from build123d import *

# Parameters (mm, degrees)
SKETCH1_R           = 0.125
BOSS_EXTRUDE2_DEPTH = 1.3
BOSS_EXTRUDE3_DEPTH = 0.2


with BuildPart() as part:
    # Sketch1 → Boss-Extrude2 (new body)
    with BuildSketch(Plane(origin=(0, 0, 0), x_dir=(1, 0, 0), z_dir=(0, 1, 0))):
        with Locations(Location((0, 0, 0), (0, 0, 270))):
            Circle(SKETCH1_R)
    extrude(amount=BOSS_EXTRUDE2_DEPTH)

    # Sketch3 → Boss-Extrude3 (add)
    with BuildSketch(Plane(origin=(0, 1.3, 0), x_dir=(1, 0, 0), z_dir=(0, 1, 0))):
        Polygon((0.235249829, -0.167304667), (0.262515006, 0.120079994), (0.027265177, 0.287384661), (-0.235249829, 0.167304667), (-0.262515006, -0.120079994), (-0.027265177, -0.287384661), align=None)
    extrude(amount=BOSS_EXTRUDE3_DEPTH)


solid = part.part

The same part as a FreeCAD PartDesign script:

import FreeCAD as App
import Part
import Sketcher

V = App.Vector

doc = App.newDocument("Part")
body = doc.addObject("PartDesign::Body", "Body")

# Sketch on XZ plane
sketch1 = doc.addObject("Sketcher::SketchObject", "Sketch")
body.addObject(sketch1)
sketch1.AttachmentSupport = (doc.XZ_Plane, [""])
sketch1.MapMode = "FlatFace"
sketch1.addGeometry(Part.Circle(V(0, 0, 0), V(0, 0, 1), 0.12), False)
sketch1.addConstraint([
    Sketcher.Constraint("Coincident", 0, 3, -1, 1),
    Sketcher.Constraint("Diameter", 0, 0.25),
])
pad1 = doc.addObject("PartDesign::Pad", "Pad")
body.addObject(pad1)
pad1.Profile = sketch1
pad1.Length = 1.3
pad1.Reversed = True

# Sketch on XZ plane
sketch2 = doc.addObject("Sketcher::SketchObject", "Sketch001")
body.addObject(sketch2)
sketch2.AttachmentSupport = (doc.XZ_Plane, [""])
sketch2.MapMode = "FlatFace"
sketch2.AttachmentOffset = App.Placement(V(0, 0, -1.3), App.Rotation())
sketch2.addGeometry([
    Part.LineSegment(V(0.24, 0.17, 0), V(0.26, -0.12, 0)),  # 0
    Part.LineSegment(V(0.26, -0.12, 0), V(0.03, -0.29, 0)),  # 1
    Part.LineSegment(V(0.03, -0.29, 0), V(-0.24, -0.17, 0)),  # 2
    Part.LineSegment(V(-0.24, -0.17, 0), V(-0.26, 0.12, 0)),  # 3
    Part.LineSegment(V(-0.26, 0.12, 0), V(-0.03, 0.29, 0)),  # 4
    Part.LineSegment(V(-0.03, 0.29, 0), V(0.24, 0.17, 0)),  # 5
], False)
sketch2.addConstraint([
    Sketcher.Constraint("Coincident", 0, 2, 1, 1),
    Sketcher.Constraint("Coincident", 1, 2, 2, 1),
    Sketcher.Constraint("Coincident", 2, 2, 3, 1),
    Sketcher.Constraint("Coincident", 3, 2, 4, 1),
    Sketcher.Constraint("Coincident", 4, 2, 5, 1),
    Sketcher.Constraint("Coincident", 5, 2, 0, 1),
    Sketcher.Constraint("Symmetric", 0, 2, 3, 2, -1, 1),
    Sketcher.Constraint("Symmetric", 1, 2, 4, 2, -1, 1),
    Sketcher.Constraint("Symmetric", 2, 2, 5, 2, -1, 1),
    Sketcher.Constraint("Equal", 0, 1),
    Sketcher.Constraint("Equal", 1, 2),
    Sketcher.Constraint("DistanceX", 2, 2, 5, 2, 0.4705),
    Sketcher.Constraint("DistanceY", 0, 2, -1, 1, 0.12008),
    Sketcher.Constraint("DistanceX", 1, 2, 0, 2, 0.23525),
    Sketcher.Constraint("DistanceY", 1, 2, 2, 2, 0.12008),
])
pad2 = doc.addObject("PartDesign::Pad", "Pad001")
body.addObject(pad2)
pad2.Profile = sketch2
pad2.Length = 0.2
pad2.Reversed = True

doc.recompute()
